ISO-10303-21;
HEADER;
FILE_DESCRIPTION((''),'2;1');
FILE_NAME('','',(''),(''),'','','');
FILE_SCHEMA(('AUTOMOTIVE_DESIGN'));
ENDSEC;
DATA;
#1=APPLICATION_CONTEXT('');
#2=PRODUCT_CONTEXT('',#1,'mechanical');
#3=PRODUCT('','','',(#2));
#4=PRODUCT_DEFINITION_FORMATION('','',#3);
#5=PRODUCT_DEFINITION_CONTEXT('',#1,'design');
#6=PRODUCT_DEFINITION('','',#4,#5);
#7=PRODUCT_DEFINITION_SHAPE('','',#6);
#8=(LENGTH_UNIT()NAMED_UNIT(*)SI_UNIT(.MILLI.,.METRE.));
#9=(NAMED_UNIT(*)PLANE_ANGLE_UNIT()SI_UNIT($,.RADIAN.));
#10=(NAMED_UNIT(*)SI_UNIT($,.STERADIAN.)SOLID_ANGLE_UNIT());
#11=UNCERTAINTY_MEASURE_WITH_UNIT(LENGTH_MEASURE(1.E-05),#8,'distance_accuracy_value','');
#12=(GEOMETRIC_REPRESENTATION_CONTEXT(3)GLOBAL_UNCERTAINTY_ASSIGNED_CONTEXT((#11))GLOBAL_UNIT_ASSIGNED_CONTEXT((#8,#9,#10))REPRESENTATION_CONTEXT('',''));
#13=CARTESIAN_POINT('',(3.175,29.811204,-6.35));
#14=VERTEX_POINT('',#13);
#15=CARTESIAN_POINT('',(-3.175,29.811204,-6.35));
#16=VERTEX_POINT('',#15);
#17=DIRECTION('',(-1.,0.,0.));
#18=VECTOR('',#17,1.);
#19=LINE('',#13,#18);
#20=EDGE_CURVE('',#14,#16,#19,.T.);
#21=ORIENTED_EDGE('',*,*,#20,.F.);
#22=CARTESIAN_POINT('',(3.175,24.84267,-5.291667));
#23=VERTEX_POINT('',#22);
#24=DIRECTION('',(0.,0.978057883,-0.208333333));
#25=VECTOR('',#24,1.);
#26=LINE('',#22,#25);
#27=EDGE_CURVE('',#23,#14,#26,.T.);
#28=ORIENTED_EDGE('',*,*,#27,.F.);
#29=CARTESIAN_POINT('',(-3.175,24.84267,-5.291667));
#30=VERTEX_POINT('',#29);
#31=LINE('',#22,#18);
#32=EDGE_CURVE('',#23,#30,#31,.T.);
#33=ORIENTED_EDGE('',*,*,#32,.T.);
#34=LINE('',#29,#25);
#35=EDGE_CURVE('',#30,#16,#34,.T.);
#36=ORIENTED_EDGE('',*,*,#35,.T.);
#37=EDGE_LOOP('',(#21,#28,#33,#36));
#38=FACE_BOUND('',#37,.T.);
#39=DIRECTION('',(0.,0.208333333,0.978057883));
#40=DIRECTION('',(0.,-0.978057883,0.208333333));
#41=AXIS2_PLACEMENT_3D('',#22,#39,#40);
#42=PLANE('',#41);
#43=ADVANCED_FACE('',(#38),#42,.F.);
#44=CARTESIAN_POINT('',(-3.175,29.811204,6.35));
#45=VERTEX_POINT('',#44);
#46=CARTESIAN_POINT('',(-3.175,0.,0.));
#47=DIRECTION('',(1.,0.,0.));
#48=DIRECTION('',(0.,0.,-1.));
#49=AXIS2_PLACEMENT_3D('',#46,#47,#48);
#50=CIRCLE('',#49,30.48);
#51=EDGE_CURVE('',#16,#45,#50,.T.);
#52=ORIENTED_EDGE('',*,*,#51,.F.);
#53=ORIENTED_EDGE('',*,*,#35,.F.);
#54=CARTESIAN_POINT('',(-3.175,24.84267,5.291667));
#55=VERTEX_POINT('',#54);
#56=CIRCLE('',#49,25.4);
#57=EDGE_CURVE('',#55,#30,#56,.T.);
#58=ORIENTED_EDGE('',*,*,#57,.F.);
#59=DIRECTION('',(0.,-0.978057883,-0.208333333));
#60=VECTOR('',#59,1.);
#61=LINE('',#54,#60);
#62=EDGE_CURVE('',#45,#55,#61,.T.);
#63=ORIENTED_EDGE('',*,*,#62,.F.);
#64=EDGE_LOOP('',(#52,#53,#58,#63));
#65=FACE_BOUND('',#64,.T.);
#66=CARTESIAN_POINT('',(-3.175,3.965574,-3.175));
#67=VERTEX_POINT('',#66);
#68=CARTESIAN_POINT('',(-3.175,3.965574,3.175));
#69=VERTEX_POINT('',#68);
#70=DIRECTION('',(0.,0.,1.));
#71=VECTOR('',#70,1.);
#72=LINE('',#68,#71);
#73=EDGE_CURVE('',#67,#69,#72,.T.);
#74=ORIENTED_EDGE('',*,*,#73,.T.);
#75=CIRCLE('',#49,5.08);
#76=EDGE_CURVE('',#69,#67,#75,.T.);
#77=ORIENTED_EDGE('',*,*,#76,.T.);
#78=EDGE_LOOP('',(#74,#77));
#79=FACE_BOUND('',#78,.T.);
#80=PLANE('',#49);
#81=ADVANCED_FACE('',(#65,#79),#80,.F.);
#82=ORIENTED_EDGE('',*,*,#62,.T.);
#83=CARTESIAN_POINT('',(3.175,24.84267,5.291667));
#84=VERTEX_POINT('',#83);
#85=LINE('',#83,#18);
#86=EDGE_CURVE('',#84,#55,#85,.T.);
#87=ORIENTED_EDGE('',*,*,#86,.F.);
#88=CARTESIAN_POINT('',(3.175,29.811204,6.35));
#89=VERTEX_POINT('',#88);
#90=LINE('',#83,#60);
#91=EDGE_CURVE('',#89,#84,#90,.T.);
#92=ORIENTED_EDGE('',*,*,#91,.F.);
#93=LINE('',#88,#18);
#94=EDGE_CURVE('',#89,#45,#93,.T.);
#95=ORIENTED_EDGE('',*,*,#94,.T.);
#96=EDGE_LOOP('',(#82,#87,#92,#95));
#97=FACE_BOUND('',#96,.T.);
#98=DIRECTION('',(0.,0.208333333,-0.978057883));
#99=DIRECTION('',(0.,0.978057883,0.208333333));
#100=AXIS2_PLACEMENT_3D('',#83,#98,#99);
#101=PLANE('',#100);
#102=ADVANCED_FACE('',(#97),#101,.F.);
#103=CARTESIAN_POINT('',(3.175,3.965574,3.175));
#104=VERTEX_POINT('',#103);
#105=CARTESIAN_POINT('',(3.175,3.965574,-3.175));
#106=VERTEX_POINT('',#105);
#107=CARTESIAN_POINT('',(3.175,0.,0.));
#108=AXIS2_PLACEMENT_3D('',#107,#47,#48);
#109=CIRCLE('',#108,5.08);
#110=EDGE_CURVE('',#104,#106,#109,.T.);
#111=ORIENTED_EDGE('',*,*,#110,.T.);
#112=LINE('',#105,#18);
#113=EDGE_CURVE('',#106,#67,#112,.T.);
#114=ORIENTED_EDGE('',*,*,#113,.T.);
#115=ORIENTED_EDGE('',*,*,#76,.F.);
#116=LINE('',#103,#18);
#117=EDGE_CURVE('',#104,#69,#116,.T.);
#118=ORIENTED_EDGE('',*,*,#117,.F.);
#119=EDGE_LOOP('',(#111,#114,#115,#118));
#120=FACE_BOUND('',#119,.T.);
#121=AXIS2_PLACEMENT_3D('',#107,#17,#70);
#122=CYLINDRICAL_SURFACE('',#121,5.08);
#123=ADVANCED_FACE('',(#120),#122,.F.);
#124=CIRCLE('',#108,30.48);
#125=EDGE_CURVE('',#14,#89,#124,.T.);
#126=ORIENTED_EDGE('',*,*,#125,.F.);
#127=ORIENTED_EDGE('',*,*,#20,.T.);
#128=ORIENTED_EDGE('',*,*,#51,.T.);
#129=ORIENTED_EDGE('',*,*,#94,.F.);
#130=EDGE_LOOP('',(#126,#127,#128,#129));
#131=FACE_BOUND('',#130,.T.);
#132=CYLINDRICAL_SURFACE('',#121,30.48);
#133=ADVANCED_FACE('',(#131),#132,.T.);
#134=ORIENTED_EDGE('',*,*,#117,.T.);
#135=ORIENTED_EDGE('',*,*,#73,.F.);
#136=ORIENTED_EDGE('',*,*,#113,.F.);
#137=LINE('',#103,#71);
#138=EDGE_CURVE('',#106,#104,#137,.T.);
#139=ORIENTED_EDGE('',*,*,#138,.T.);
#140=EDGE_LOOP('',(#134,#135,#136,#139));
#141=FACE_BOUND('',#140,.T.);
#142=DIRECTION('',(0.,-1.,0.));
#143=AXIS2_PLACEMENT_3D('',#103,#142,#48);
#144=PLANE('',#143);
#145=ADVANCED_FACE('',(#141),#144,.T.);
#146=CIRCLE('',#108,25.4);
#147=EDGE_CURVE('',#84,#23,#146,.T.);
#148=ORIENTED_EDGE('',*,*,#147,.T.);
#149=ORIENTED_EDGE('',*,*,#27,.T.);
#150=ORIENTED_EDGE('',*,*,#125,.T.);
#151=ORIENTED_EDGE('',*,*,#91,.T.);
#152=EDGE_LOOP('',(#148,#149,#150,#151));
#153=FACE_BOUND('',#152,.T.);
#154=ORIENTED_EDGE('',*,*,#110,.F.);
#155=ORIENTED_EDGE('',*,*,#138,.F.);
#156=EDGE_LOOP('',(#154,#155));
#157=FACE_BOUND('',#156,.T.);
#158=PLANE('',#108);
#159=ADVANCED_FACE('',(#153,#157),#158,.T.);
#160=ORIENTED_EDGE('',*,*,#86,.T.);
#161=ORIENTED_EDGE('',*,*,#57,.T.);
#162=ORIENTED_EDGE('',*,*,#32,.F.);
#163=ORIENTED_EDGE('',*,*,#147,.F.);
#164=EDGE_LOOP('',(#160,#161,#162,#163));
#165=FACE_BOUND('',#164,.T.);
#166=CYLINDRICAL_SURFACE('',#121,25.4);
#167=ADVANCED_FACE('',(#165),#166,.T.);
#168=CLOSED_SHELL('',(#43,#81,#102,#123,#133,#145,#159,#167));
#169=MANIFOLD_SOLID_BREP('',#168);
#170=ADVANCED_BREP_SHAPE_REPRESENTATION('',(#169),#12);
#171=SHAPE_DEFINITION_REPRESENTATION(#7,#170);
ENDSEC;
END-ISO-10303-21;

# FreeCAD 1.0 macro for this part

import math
import FreeCAD as App
import Part
import Sketcher

V = App.Vector
Q = App.Units.Quantity

doc = App.newDocument("Part")
body = doc.addObject("PartDesign::Body", "Body")

# Sketch on YZ plane
sketch1 = doc.addObject("Sketcher::SketchObject", "Sketch")
body.addObject(sketch1)
sketch1.AttachmentSupport = (doc.YZ_Plane, [""])
sketch1.MapMode = "FlatFace"
sketch1.addGeometry([
    Part.Circle(V(0, 0, 0), V(0, 0, 1), 25.4),
    Part.ArcOfCircle(Part.Circle(V(0, 0, 0), V(0, 0, 1), 5.08), math.radians(38.682187), math.radians(321.317813)),
    Part.LineSegment(V(3.965574, 3.175, 0), V(3.965574, -3.175, 0)),
], False)
sketch1.addConstraint([
    Sketcher.Constraint("Coincident", 1, 1, 2, 1),
    Sketcher.Constraint("Coincident", 2, 2, 1, 2),
    Sketcher.Constraint("Vertical", 2),
    Sketcher.Constraint("Coincident", 0, 3, -1, 1),
    Sketcher.Constraint("Coincident", 1, 3, -1, 1),
    Sketcher.Constraint("Diameter", 0, Q("2 in")),
    Sketcher.Constraint("Radius", 1, Q("0.2 in")),
    Sketcher.Constraint("DistanceY", 2, 2, 2, 1, Q("0.25 in")),
])
pad1 = doc.addObject("PartDesign::Pad", "Pad")
body.addObject(pad1)
pad1.Profile = sketch1
pad1.Length = Q("0.25 in")
pad1.Midplane = True

# Sketch on YZ plane
sketch2 = doc.addObject("Sketcher::SketchObject", "Sketch001")
body.addObject(sketch2)
sketch2.AttachmentSupport = (doc.YZ_Plane, [""])
sketch2.MapMode = "FlatFace"
sketch2.addGeometry([
    Part.LineSegment(V(29.811204, 6.35, 0), V(24.84267, 5.291667, 0)),
    Part.ArcOfCircle(Part.Circle(V(0, 0, 0), V(0, 0, 1), 25.4), math.radians(-12.024699), math.radians(12.024699)),
    Part.LineSegment(V(24.84267, -5.291667, 0), V(29.811204, -6.35, 0)),
    Part.ArcOfCircle(Part.Circle(V(0, 0, 0), V(0, 0, 1), 30.48), math.radians(-12.024699), math.radians(12.024699)),
], False)
sketch2.addConstraint([
    Sketcher.Constraint("Coincident", 0, 2, 1, 2),
    Sketcher.Constraint("Coincident", 1, 1, 2, 1),
    Sketcher.Constraint("Coincident", 2, 2, 3, 1),
    Sketcher.Constraint("Coincident", 3, 2, 0, 1),
    Sketcher.Constraint("Coincident", 1, 3, -1, 1),
    Sketcher.Constraint("Coincident", 3, 3, -1, 1),
    Sketcher.Constraint("Vertical", 0, 2, 1, 1),
    Sketcher.Constraint("Vertical", 2, 2, 3, 2),
    Sketcher.Constraint("Radius", 1, Q("1 in")),
    Sketcher.Constraint("Radius", 3, Q("1.2 in")),
    Sketcher.Constraint("DistanceY", 2, 2, 3, 2, Q("0.5 in")),
    Sketcher.Constraint("DistanceX", -1, 1, 0, 2, 24.84267),
])
pad2 = doc.addObject("PartDesign::Pad", "Pad001")
body.addObject(pad2)
pad2.Profile = sketch2
pad2.Length = Q("0.25 in")
pad2.Midplane = True

doc.recompute()
